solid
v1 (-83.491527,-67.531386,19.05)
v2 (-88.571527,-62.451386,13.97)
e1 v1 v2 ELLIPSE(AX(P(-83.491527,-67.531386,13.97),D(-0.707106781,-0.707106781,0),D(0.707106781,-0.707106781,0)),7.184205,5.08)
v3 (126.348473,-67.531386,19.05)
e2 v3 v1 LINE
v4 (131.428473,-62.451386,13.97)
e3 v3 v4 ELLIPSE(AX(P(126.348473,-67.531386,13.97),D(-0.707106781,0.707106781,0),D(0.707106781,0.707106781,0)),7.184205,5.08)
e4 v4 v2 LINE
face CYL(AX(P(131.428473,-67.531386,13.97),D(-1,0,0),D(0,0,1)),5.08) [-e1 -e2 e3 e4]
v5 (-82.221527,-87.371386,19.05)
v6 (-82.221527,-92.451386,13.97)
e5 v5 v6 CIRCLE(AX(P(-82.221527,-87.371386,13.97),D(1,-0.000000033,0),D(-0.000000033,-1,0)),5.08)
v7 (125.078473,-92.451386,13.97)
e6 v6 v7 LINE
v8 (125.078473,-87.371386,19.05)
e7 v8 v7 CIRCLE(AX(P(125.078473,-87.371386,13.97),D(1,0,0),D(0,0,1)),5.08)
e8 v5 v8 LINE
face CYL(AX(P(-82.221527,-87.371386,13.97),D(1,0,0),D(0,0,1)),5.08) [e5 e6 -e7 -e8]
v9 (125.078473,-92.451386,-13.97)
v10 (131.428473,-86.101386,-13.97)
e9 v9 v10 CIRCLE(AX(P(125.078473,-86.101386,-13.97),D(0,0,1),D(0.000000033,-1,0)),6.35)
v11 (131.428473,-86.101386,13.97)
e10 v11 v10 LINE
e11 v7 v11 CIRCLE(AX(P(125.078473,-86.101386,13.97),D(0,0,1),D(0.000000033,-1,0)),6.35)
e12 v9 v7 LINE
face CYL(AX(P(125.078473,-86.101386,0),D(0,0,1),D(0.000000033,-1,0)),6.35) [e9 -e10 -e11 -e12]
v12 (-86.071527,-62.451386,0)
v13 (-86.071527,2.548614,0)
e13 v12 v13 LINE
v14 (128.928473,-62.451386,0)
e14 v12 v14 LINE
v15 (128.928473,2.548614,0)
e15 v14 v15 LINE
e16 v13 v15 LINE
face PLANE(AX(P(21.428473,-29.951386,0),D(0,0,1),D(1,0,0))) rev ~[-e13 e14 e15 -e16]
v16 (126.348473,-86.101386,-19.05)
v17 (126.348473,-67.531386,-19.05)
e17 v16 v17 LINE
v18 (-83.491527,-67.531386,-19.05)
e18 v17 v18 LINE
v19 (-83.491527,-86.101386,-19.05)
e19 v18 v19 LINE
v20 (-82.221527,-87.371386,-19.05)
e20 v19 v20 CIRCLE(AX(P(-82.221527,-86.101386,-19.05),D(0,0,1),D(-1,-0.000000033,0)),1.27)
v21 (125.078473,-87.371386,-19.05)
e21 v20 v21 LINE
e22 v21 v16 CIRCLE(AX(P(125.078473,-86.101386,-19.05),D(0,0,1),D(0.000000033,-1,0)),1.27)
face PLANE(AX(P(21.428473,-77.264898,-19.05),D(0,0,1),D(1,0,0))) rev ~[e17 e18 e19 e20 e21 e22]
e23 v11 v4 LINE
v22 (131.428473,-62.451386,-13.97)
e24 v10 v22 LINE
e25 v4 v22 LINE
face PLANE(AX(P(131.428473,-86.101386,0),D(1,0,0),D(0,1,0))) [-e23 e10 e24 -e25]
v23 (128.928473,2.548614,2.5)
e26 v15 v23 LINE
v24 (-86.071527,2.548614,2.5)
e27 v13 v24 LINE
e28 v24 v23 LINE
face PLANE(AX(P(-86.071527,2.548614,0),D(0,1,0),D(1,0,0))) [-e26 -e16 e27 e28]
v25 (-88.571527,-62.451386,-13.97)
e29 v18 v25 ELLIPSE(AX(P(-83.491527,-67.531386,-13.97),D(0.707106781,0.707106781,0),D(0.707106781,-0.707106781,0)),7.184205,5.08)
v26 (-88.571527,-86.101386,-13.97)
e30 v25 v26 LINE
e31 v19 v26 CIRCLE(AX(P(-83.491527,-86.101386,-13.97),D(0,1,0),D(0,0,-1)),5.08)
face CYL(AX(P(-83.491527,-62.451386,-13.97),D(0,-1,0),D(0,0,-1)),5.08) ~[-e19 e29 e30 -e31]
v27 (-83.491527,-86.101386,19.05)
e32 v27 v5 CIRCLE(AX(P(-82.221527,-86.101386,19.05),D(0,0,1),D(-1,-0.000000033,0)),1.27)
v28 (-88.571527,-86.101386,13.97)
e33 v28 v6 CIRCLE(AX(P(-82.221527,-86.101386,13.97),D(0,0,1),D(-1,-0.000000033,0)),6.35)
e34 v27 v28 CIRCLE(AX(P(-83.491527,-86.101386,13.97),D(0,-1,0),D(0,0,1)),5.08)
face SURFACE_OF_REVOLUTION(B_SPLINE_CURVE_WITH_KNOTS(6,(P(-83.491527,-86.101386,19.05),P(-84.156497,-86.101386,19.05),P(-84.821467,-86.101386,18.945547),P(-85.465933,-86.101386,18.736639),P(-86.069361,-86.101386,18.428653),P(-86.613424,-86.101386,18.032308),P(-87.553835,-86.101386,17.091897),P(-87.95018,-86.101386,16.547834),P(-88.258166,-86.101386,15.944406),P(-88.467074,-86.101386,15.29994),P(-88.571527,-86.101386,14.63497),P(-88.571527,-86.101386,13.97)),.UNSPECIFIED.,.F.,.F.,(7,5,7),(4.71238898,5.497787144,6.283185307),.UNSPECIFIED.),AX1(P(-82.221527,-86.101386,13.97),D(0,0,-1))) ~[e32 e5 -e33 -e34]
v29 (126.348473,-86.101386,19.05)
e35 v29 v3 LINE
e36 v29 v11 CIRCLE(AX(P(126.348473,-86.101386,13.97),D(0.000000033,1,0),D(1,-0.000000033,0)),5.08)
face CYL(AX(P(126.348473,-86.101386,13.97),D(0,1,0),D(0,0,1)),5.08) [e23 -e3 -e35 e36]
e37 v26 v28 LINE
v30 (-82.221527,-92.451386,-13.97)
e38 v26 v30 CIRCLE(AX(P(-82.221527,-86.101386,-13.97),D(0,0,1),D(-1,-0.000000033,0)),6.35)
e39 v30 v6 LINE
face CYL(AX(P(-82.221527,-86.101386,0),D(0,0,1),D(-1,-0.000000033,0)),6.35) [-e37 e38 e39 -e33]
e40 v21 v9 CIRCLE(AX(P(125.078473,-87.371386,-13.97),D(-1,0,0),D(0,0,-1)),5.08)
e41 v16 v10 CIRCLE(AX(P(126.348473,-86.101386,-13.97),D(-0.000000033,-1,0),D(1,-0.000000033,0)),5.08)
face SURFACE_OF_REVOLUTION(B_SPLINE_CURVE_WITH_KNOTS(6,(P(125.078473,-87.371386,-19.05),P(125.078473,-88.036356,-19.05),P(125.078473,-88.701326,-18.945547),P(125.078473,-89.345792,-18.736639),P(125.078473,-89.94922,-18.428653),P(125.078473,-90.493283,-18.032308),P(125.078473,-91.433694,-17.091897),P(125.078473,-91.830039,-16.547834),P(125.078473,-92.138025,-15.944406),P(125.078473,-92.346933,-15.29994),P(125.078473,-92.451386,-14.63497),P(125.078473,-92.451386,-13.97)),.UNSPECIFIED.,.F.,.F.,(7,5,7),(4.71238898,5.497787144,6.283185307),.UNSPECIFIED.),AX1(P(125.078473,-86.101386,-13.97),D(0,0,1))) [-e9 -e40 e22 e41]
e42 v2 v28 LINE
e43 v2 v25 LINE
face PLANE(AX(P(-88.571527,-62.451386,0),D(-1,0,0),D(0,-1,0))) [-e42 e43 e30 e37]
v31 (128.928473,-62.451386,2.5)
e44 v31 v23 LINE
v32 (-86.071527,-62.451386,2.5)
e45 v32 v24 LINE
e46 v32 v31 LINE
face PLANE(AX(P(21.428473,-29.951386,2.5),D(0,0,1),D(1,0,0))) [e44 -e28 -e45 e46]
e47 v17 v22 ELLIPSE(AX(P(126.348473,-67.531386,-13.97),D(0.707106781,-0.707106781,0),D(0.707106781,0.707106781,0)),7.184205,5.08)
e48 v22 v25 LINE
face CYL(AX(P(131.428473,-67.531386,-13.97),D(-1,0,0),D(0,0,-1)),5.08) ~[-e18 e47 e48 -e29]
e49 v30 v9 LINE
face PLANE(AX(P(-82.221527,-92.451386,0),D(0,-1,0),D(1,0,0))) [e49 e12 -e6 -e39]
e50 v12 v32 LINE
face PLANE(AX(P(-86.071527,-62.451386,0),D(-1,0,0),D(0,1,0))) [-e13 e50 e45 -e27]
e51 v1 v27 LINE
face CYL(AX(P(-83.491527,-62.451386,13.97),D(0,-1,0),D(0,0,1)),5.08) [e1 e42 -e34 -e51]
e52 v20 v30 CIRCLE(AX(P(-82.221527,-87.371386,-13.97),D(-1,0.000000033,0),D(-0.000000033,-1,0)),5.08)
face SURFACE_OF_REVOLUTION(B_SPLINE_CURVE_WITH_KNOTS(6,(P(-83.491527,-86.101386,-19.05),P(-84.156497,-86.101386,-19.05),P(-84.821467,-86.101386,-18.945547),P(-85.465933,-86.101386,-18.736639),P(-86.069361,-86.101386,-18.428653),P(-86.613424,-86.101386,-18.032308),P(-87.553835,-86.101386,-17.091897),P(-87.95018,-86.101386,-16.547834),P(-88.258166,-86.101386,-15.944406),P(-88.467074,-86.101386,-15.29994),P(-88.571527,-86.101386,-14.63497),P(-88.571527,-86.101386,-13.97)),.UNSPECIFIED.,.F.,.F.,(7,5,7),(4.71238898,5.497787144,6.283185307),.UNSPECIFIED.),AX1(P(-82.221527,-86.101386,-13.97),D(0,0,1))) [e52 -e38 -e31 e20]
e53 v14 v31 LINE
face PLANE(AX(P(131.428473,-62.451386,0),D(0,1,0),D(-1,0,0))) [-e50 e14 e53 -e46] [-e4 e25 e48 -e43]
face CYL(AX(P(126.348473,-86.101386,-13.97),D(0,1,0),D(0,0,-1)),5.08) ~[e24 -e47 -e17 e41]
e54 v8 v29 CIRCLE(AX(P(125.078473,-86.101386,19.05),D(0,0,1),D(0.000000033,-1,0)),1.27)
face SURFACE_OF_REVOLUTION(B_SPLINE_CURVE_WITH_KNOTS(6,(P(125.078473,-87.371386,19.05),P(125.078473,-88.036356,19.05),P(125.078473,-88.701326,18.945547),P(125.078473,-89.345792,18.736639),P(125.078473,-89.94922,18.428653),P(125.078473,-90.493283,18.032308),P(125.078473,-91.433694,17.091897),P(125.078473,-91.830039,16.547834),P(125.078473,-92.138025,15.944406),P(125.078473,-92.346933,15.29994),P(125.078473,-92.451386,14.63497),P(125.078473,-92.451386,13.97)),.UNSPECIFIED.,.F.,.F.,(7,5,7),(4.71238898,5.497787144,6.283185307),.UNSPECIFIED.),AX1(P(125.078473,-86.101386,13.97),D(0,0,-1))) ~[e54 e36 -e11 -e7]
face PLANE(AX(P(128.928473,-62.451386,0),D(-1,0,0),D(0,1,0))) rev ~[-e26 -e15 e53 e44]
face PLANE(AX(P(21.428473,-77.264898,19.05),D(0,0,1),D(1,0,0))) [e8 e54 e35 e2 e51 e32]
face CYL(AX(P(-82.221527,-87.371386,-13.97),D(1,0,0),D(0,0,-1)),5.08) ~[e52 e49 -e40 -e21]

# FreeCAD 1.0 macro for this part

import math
import FreeCAD as App
import Part
import Sketcher

V = App.Vector


def edges_at(feature, points):
    """Names of the edges that pass closest to the given points."""
    edges = feature.Shape.Edges
    near = lambda p: min(range(len(edges)), key=lambda i: edges[i].distToShape(Part.Vertex(*p))[0])
    return sorted({f"Edge{near(p) + 1}" for p in points})


def add_polygon(sketch, points):
    """Adds a closed chain of lines whose ends are joined by coincident constraints."""
    first, n = sketch.GeometryCount, len(points)
    for a, b in zip(points, points[1:] + points[:1]):
        sketch.addGeometry(Part.LineSegment(App.Vector(*a, 0), App.Vector(*b, 0)), False)
    for i in range(n):
        sketch.addConstraint(Sketcher.Constraint("Coincident", first + i, 2, first + (i + 1) % n, 1))

doc = App.newDocument("Part")
params = doc.addObject("Spreadsheet::Sheet", "Params")
for row, (alias, value) in enumerate([
    ("sketch1_width", "215 mm"),
    ("sketch1_height", "65 mm"),
    ("pad1_length", "2.5 mm"),
    ("sketch2_width", "220 mm"),
    ("sketch2_radius", "6.35 mm"),
    ("pad2_length", "38.1 mm"),
    ("fillet_radius", "5.08 mm"),
], start=1):
    params.set(f"A{row}", alias)
    params.set(f"B{row}", "=" + value)
    params.setAlias(f"B{row}", alias)

body = doc.addObject("PartDesign::Body", "Body")

sketch1 = body.newObject("Sketcher::SketchObject", "Sketch")
sketch1.AttachmentSupport = (doc.getObject("XY_Plane"), [""])
sketch1.MapMode = "FlatFace"
add_polygon(sketch1, [(-86, 3), (-86, -62), (129, -62), (129, 3)])
sketch1.addConstraint(Sketcher.Constraint("Vertical", 0))
sketch1.addConstraint(Sketcher.Constraint("Horizontal", 1))
sketch1.addConstraint(Sketcher.Constraint("Vertical", 2))
sketch1.addConstraint(Sketcher.Constraint("Horizontal", 3))
sketch1.addConstraint(Sketcher.Constraint("DistanceX", 1, 1, 1, 2, 215.0))
sketch1.addConstraint(Sketcher.Constraint("DistanceY", 0, 2, 0, 1, 65.0))
sketch1.addConstraint(Sketcher.Constraint("DistanceX", 0, 2, -1, 1, 86.071527))
sketch1.addConstraint(Sketcher.Constraint("DistanceY", 0, 2, -1, 1, 62.451386))
sketch1.setExpression("Constraints[8]", "Params.sketch1_width")
sketch1.setExpression("Constraints[9]", "Params.sketch1_height")
pad1 = body.newObject("PartDesign::Pad", "Pad")
pad1.Profile = sketch1
pad1.setExpression("Length", "Params.pad1_length")

sketch2 = body.newObject("Sketcher::SketchObject", "Sketch001")
sketch2.AttachmentSupport = (doc.getObject("XY_Plane"), [""])
sketch2.MapMode = "FlatFace"
sketch2.addGeometry(Part.LineSegment(V(-89, -62, 0), V(-89, -86, 0)), False)
sketch2.addGeometry(Part.ArcOfCircle(Part.Circle(V(-82, -86, 0), V(0, 0, 1), 6), math.radians(-180), math.radians(-90)), False)
sketch2.addGeometry(Part.LineSegment(V(-82, -92, 0), V(125, -92, 0)), False)
sketch2.addGeometry(Part.ArcOfCircle(Part.Circle(V(125, -86, 0), V(0, 0, 1), 6), math.radians(-90), math.radians(0)), False)
sketch2.addGeometry(Part.LineSegment(V(131, -86, 0), V(131, -62, 0)), False)
sketch2.addGeometry(Part.LineSegment(V(131, -62, 0), V(-89, -62, 0)), False)
sketch2.addConstraint(Sketcher.Constraint("Tangent", 0, 2, 1, 1))
sketch2.addConstraint(Sketcher.Constraint("Tangent", 1, 2, 2, 1))
sketch2.addConstraint(Sketcher.Constraint("Tangent", 2, 2, 3, 1))
sketch2.addConstraint(Sketcher.Constraint("Tangent", 3, 2, 4, 1))
sketch2.addConstraint(Sketcher.Constraint("Coincident", 4, 2, 5, 1))
sketch2.addConstraint(Sketcher.Constraint("Coincident", 5, 2, 0, 1))
sketch2.addConstraint(Sketcher.Constraint("Vertical", 0))
sketch2.addConstraint(Sketcher.Constraint("Horizontal", 2))
sketch2.addConstraint(Sketcher.Constraint("Vertical", 4))
sketch2.addConstraint(Sketcher.Constraint("Horizontal", 5))
sketch2.addConstraint(Sketcher.Constraint("Equal", 1, 3))
sketch2.addConstraint(Sketcher.Constraint("DistanceX", 5, 2, 5, 1, 220.0))
sketch2.addConstraint(Sketcher.Constraint("Radius", 1, 6.35))
sketch2.addConstraint(Sketcher.Constraint("DistanceY", 2, 2, 4, 2, 30.0))
sketch2.addConstraint(Sketcher.Constraint("DistanceX", 1, 3, -1, 1, 82.221527))
sketch2.addConstraint(Sketcher.Constraint("DistanceY", 1, 3, -1, 1, 86.101386))
sketch2.setExpression("Constraints[11]", "Params.sketch2_width")
sketch2.setExpression("Constraints[12]", "Params.sketch2_radius")
pad2 = body.newObject("PartDesign::Pad", "Pad001")
pad2.Profile = sketch2
pad2.setExpression("Length", "Params.pad2_length")
pad2.Midplane = True
doc.recompute()

fillet = body.newObject("PartDesign::Fillet", "Fillet")
fillet.Base = (pad2, edges_at(pad2, [
    (21.428, -92.451, 19.05),
    (21.428, -92.451, -19.05),
    (21.428, -62.451, 19.05),
    (21.428, -62.451, -19.05),
]))
fillet.setExpression("Radius", "Params.fillet_radius")

doc.recompute()
